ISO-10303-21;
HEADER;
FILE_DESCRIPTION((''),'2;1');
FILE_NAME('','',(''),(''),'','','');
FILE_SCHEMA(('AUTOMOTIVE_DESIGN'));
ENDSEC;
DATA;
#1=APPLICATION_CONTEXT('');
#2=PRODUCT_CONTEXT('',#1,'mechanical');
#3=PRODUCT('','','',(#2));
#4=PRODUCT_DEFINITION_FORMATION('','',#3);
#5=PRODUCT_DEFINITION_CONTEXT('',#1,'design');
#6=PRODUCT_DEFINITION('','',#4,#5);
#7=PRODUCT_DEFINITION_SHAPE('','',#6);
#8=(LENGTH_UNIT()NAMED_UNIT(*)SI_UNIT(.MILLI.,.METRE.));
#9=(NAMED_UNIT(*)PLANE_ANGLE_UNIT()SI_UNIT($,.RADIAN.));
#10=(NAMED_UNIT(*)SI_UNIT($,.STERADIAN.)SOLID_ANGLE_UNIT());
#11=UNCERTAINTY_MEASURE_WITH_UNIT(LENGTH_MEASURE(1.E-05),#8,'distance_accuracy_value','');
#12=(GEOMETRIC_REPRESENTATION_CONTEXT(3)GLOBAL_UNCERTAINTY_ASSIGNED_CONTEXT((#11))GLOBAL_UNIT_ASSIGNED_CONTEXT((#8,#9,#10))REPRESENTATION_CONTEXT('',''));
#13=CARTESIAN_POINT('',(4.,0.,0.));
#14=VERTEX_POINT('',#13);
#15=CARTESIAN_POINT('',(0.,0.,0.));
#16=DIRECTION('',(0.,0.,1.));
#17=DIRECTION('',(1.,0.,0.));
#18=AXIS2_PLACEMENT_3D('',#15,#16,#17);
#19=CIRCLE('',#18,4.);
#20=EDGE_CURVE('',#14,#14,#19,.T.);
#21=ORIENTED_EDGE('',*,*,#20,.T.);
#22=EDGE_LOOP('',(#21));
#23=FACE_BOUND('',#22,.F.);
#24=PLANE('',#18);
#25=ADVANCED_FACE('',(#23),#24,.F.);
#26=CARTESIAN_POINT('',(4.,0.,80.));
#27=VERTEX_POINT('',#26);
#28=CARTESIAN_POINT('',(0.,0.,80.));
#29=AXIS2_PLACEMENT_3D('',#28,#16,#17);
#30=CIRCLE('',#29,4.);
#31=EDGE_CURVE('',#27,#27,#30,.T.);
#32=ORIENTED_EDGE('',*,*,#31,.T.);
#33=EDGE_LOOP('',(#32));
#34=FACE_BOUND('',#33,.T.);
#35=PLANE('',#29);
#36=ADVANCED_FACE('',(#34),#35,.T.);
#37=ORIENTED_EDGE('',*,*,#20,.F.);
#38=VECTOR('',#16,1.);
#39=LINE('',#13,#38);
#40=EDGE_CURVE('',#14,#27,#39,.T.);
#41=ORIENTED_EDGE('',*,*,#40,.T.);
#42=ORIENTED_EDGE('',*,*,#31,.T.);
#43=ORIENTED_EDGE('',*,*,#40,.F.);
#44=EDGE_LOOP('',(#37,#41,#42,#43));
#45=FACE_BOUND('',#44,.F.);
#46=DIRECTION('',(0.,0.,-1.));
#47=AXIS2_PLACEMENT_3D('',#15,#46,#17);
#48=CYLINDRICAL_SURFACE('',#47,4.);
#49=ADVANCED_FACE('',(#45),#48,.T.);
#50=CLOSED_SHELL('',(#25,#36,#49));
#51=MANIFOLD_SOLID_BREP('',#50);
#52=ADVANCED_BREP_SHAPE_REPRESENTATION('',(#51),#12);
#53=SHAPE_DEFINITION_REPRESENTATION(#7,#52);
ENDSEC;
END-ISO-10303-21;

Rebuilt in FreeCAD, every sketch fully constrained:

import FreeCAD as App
import Part
import Sketcher
from FreeCAD import Vector
Q = App.Units.Quantity

doc = App.newDocument("Part")
body = doc.addObject("PartDesign::Body", "Body")

sketch1 = body.newObject("Sketcher::SketchObject", "Sketch")
sketch1.AttachmentSupport = (doc.getObject("XY_Plane"), [""])
sketch1.MapMode = "FlatFace"
sketch1.addGeometry(Part.Circle(Vector(0, 0, 0), Vector(0, 0, 1), 4), False)
sketch1.addConstraint([
    Sketcher.Constraint("Coincident", 0, 3, -1, 1),
    Sketcher.Constraint("Diameter", 0, Q("8 mm")),
])
pad1 = body.newObject("PartDesign::Pad", "Pad")
pad1.Profile = sketch1
pad1.Length = 80

doc.recompute()
